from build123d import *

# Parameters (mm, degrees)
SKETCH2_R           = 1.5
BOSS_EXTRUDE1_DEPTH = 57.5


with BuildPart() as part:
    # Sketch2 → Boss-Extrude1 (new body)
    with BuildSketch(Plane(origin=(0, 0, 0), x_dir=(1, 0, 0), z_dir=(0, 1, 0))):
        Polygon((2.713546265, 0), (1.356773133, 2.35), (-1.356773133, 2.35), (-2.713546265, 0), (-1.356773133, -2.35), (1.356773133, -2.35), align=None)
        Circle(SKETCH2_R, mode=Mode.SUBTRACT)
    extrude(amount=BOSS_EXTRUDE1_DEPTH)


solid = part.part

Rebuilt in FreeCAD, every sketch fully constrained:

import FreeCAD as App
import Part
import Sketcher
from FreeCAD import Vector
Q = App.Units.Quantity


def add_polygon(sketch, points):
    """Adds a closed chain of lines whose ends are joined by coincident constraints."""
    first, n = sketch.GeometryCount, len(points)
    for a, b in zip(points, points[1:] + points[:1]):
        sketch.addGeometry(Part.LineSegment(App.Vector(*a, 0), App.Vector(*b, 0)), False)
    for i in range(n):
        sketch.addConstraint(Sketcher.Constraint("Coincident", first + i, 2, first + (i + 1) % n, 1))

doc = App.newDocument("Part")
body = doc.addObject("PartDesign::Body", "Body")

# Sketch on XZ plane
sketch1 = body.newObject("Sketcher::SketchObject", "Sketch")
sketch1.AttachmentSupport = (doc.getObject("XZ_Plane"), [""])
sketch1.MapMode = "FlatFace"
add_polygon(sketch1, [(2.7, 0), (1.4, -2.4), (-1.4, -2.4), (-2.7, 0), (-1.4, 2.4), (1.4, 2.4)])  # lines 0-5
sketch1.addGeometry(Part.Circle(Vector(0, 0, 0), Vector(0, 0, 1), 1.5), False)  # 6
sketch1.addConstraint([
    Sketcher.Constraint("Horizontal", 1),
    Sketcher.Constraint("Horizontal", 4),
    Sketcher.Constraint("Coincident", 6, 3, -1, 1),
    Sketcher.Constraint("Symmetric", 0, 2, 3, 2, -1, 1),
    Sketcher.Constraint("Symmetric", 2, 2, 5, 2, -1, 1),
    Sketcher.Constraint("PointOnObject", 2, 2, -1),
    Sketcher.Constraint("Parallel", 2, 5),
    Sketcher.Constraint("Vertical", 1, 2, 3, 2),
    Sketcher.Constraint("Diameter", 6, Q("3 mm")),
    Sketcher.Constraint("Angle", 0, Q("-120 deg")),
    Sketcher.Constraint("DistanceY", 1, 2, 3, 2, Q("4.7 mm")),
    Sketcher.Constraint("DistanceX", 1, 2, 1, 1, Q("2.713546 mm")),
])
pad1 = body.newObject("PartDesign::Pad", "Pad")
pad1.Profile = sketch1
pad1.Length = 57.5
pad1.Reversed = True

doc.recompute()
